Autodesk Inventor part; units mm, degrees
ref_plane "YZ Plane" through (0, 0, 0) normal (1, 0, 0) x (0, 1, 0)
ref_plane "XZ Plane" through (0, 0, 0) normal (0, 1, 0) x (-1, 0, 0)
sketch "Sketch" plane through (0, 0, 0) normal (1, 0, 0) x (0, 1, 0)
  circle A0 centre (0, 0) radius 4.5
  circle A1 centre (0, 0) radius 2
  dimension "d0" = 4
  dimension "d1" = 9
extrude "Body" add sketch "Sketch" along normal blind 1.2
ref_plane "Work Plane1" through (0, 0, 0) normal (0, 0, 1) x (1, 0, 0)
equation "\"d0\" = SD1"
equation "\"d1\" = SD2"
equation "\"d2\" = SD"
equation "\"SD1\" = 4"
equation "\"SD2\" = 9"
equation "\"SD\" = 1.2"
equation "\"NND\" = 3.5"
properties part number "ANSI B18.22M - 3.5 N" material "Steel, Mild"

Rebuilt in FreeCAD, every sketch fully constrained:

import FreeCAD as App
import Part
import Sketcher

V = App.Vector
Q = App.Units.Quantity

doc = App.newDocument("Part")
body = doc.addObject("PartDesign::Body", "Body")

# Sketch on YZ plane
sketch1 = body.newObject("Sketcher::SketchObject", "Sketch")
sketch1.AttachmentSupport = (doc.getObject("YZ_Plane"), [""])
sketch1.MapMode = "FlatFace"
sketch1.addGeometry(Part.Circle(V(0, 0, 0), V(0, 0, 1), 4.5), False)
sketch1.addGeometry(Part.Circle(V(0, 0, 0), V(0, 0, 1), 2), False)
sketch1.addConstraint(Sketcher.Constraint("Coincident", 0, 3, -1, 1))
sketch1.addConstraint(Sketcher.Constraint("Coincident", 1, 3, -1, 1))
sketch1.addConstraint(Sketcher.Constraint("Diameter", 0, Q("9 mm")))
sketch1.addConstraint(Sketcher.Constraint("Diameter", 1, Q("4 mm")))
pad1 = body.newObject("PartDesign::Pad", "Pad")
pad1.Profile = sketch1
pad1.Length = 1.2

doc.recompute()
